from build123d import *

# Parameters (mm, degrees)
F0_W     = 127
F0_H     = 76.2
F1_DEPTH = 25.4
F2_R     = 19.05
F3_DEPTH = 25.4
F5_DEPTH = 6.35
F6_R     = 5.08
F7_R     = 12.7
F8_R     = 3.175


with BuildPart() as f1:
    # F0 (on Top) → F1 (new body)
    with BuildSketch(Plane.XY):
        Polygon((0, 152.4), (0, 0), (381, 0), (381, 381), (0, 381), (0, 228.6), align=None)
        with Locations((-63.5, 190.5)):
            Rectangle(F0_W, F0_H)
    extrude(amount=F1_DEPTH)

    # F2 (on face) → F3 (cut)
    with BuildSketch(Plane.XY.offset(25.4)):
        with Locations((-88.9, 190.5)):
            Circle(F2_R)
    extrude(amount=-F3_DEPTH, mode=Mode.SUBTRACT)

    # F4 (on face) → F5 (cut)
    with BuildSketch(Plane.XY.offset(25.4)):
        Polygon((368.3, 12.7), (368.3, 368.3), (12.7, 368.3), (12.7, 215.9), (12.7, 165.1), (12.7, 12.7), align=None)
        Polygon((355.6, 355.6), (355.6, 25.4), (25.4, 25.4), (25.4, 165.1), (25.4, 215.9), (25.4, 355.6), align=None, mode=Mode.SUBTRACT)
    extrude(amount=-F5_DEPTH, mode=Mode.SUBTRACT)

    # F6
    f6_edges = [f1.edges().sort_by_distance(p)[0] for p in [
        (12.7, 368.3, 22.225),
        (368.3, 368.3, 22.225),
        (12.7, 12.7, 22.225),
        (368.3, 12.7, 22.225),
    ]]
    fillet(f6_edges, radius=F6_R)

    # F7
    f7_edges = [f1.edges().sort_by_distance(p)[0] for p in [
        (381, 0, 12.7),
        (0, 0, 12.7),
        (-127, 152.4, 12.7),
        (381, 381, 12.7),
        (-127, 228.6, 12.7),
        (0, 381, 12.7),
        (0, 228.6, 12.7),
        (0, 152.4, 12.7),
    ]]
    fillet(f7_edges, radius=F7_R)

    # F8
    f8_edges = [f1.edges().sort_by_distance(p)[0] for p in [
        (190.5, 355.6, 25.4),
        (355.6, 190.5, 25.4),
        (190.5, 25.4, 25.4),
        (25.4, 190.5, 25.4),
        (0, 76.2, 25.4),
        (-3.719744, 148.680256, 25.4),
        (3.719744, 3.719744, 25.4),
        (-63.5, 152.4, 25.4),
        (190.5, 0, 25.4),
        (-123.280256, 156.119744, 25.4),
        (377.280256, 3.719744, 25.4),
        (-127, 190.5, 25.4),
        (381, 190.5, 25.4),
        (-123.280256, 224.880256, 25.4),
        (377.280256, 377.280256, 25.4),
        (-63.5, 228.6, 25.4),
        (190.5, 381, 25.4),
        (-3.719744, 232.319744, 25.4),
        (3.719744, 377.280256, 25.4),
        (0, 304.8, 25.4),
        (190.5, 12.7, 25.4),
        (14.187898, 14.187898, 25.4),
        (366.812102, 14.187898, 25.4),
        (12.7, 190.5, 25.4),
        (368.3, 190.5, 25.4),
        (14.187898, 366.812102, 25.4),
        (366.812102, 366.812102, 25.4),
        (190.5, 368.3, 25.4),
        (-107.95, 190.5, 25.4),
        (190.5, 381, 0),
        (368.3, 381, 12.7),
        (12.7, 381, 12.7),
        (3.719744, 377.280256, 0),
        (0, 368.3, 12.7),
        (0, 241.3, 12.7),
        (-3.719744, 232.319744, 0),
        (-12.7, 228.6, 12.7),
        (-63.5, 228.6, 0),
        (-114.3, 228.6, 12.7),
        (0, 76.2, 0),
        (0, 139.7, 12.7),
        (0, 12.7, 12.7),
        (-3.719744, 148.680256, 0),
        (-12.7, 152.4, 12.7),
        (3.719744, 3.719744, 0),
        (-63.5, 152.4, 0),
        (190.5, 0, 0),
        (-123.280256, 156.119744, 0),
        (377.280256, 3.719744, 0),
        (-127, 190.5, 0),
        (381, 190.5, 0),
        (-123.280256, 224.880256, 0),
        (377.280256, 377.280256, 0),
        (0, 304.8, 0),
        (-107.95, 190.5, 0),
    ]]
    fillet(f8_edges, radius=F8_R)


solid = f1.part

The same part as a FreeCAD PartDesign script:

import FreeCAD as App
import Part
import Sketcher

V = App.Vector
Q = App.Units.Quantity


def edges_at(feature, points):
    """Names of the edges that pass closest to the given points."""
    edges = feature.Shape.Edges
    near = lambda p: min(range(len(edges)), key=lambda i: edges[i].distToShape(Part.Vertex(*p))[0])
    return sorted({f"Edge{near(p) + 1}" for p in points})


def add_polygon(sketch, points):
    """Adds a closed chain of lines whose ends are joined by coincident constraints."""
    first, n = sketch.GeometryCount, len(points)
    for a, b in zip(points, points[1:] + points[:1]):
        sketch.addGeometry(Part.LineSegment(App.Vector(*a, 0), App.Vector(*b, 0)), False)
    for i in range(n):
        sketch.addConstraint(Sketcher.Constraint("Coincident", first + i, 2, first + (i + 1) % n, 1))

doc = App.newDocument("Part")
params = doc.addObject("Spreadsheet::Sheet", "Params")
for row, (alias, value) in enumerate([
    ("sketch1_width", "15 in"),
    ("sketch1_width2", "5 in"),
    ("sketch1_height", "6 in"),
    ("pad1_length", "1 in"),
    ("sketch2_diameter", "1.5 in"),
    ("pocket1_length", "1 in"),
    ("sketch3_width", "14 in"),
    ("sketch3_width2", "13 in"),
    ("pocket2_length", "0.25 in"),
    ("fillet_radius", "0.2 in"),
    ("fillet2_radius", "0.5 in"),
    ("fillet3_radius", "0.125 in"),
], start=1):
    params.set(f"A{row}", alias)
    params.set(f"B{row}", "=" + value)
    params.setAlias(f"B{row}", alias)

body = doc.addObject("PartDesign::Body", "Body")

# Sketch on XY plane
sketch1 = body.newObject("Sketcher::SketchObject", "Sketch")
sketch1.AttachmentSupport = (doc.getObject("XY_Plane"), [""])
sketch1.MapMode = "FlatFace"
add_polygon(sketch1, [(0, 0), (381, 0), (381, 381), (0, 381), (0, 229), (-127, 229), (-127, 152), (0, 152)])  # lines 0-7
sketch1.addConstraint(Sketcher.Constraint("Horizontal", 0))
sketch1.addConstraint(Sketcher.Constraint("Vertical", 1))
sketch1.addConstraint(Sketcher.Constraint("Horizontal", 2))
sketch1.addConstraint(Sketcher.Constraint("Vertical", 3))
sketch1.addConstraint(Sketcher.Constraint("Horizontal", 4))
sketch1.addConstraint(Sketcher.Constraint("Vertical", 5))
sketch1.addConstraint(Sketcher.Constraint("Horizontal", 6))
sketch1.addConstraint(Sketcher.Constraint("Vertical", 7))
sketch1.addConstraint(Sketcher.Constraint("Coincident", 7, 2, -1, 1))
sketch1.addConstraint(Sketcher.Constraint("PointOnObject", 2, 2, -2))
sketch1.addConstraint(Sketcher.Constraint("Equal", 2, 1))
sketch1.addConstraint(Sketcher.Constraint("Equal", 3, 7))
sketch1.addConstraint(Sketcher.Constraint("DistanceX", 0, 1, 0, 2, Q("15 in")))
sketch1.addConstraint(Sketcher.Constraint("DistanceX", 4, 2, 4, 1, Q("5 in")))
sketch1.addConstraint(Sketcher.Constraint("DistanceY", 3, 2, 3, 1, Q("6 in")))
sketch1.setExpression("Constraints[20]", "Params.sketch1_width")
sketch1.setExpression("Constraints[21]", "Params.sketch1_width2")
sketch1.setExpression("Constraints[22]", "Params.sketch1_height")
pad1 = body.newObject("PartDesign::Pad", "Pad")
pad1.Profile = sketch1
pad1.setExpression("Length", "Params.pad1_length")

# Sketch on XY plane
sketch2 = body.newObject("Sketcher::SketchObject", "Sketch001")
sketch2.AttachmentSupport = (doc.getObject("XY_Plane"), [""])
sketch2.MapMode = "FlatFace"
sketch2.AttachmentOffset = App.Placement(V(0, 0, 1 * 25.4), App.Rotation())
sketch2.addGeometry(Part.Circle(V(-89, 190, 0), V(0, 0, 1), 19), False)
sketch2.addConstraint(Sketcher.Constraint("Diameter", 0, Q("1.5 in")))
sketch2.addConstraint(Sketcher.Constraint("DistanceX", 0, 3, -1, 1, Q("3.5 in")))
sketch2.addConstraint(Sketcher.Constraint("DistanceY", -1, 1, 0, 3, Q("7.5 in")))
sketch2.setExpression("Constraints[0]", "Params.sketch2_diameter")
pocket1 = body.newObject("PartDesign::Pocket", "Pocket")
pocket1.Profile = sketch2
pocket1.setExpression("Length", "Params.pocket1_length")

# Sketch on XY plane
sketch3 = body.newObject("Sketcher::SketchObject", "Sketch002")
sketch3.AttachmentSupport = (doc.getObject("XY_Plane"), [""])
sketch3.MapMode = "FlatFace"
sketch3.AttachmentOffset = App.Placement(V(0, 0, 1 * 25.4), App.Rotation())
add_polygon(sketch3, [(368, 13), (368, 368), (13, 368), (13, 13)])  # lines 0-3
add_polygon(sketch3, [(25, 356), (356, 356), (356, 25), (25, 25)])  # lines 4-7
sketch3.addConstraint(Sketcher.Constraint("Vertical", 0))
sketch3.addConstraint(Sketcher.Constraint("Horizontal", 1))
sketch3.addConstraint(Sketcher.Constraint("Vertical", 2))
sketch3.addConstraint(Sketcher.Constraint("Horizontal", 3))
sketch3.addConstraint(Sketcher.Constraint("Horizontal", 4))
sketch3.addConstraint(Sketcher.Constraint("Vertical", 5))
sketch3.addConstraint(Sketcher.Constraint("Horizontal", 6))
sketch3.addConstraint(Sketcher.Constraint("Vertical", 7))
sketch3.addConstraint(Sketcher.Constraint("Equal", 3, 0))
sketch3.addConstraint(Sketcher.Constraint("Equal", 6, 5))
sketch3.addConstraint(Sketcher.Constraint("DistanceX", 1, 2, 1, 1, Q("14 in")))
sketch3.addConstraint(Sketcher.Constraint("DistanceX", 4, 1, 4, 2, Q("13 in")))
sketch3.addConstraint(Sketcher.Constraint("DistanceX", -1, 1, 4, 2, Q("14 in")))
sketch3.addConstraint(Sketcher.Constraint("DistanceY", -1, 1, 4, 2, Q("14 in")))
sketch3.addConstraint(Sketcher.Constraint("DistanceX", -1, 1, 0, 2, Q("14.5 in")))
sketch3.addConstraint(Sketcher.Constraint("DistanceY", -1, 1, 0, 2, Q("14.5 in")))
sketch3.setExpression("Constraints[18]", "Params.sketch3_width")
sketch3.setExpression("Constraints[19]", "Params.sketch3_width2")
pocket2 = body.newObject("PartDesign::Pocket", "Pocket001")
pocket2.Profile = sketch3
pocket2.setExpression("Length", "Params.pocket2_length")
doc.recompute()

fillet = body.newObject("PartDesign::Fillet", "Fillet")
fillet.Base = (pocket2, edges_at(pocket2, [
    (12.7, 368.3, 22.225),
    (368.3, 368.3, 22.225),
    (12.7, 12.7, 22.225),
    (368.3, 12.7, 22.225),
]))
fillet.setExpression("Radius", "Params.fillet_radius")
doc.recompute()

fillet2 = body.newObject("PartDesign::Fillet", "Fillet001")
fillet2.Base = (fillet, edges_at(fillet, [
    (381, 0, 12.7),
    (0, 0, 12.7),
    (-127, 152.4, 12.7),
    (381, 381, 12.7),
    (-127, 228.6, 12.7),
    (0, 381, 12.7),
    (0, 228.6, 12.7),
    (0, 152.4, 12.7),
]))
fillet2.setExpression("Radius", "Params.fillet2_radius")
doc.recompute()

fillet3 = body.newObject("PartDesign::Fillet", "Fillet002")
fillet3.Base = (fillet2, edges_at(fillet2, [
    (190.5, 355.6, 25.4),
    (355.6, 190.5, 25.4),
    (190.5, 25.4, 25.4),
    (25.4, 190.5, 25.4),
    (0, 76.2, 25.4),
    (-3.72, 148.68, 25.4),
    (3.72, 3.72, 25.4),
    (-63.5, 152.4, 25.4),
    (190.5, 0, 25.4),
    (-123.28, 156.12, 25.4),
    (377.28, 3.72, 25.4),
    (-127, 190.5, 25.4),
    (381, 190.5, 25.4),
    (-123.28, 224.88, 25.4),
    (377.28, 377.28, 25.4),
    (-63.5, 228.6, 25.4),
    (190.5, 381, 25.4),
    (-3.72, 232.32, 25.4),
    (3.72, 377.28, 25.4),
    (0, 304.8, 25.4),
    (190.5, 12.7, 25.4),
    (14.188, 14.188, 25.4),
    (366.812, 14.188, 25.4),
    (12.7, 190.5, 25.4),
    (368.3, 190.5, 25.4),
    (14.188, 366.812, 25.4),
    (366.812, 366.812, 25.4),
    (190.5, 368.3, 25.4),
    (-107.95, 190.5, 25.4),
    (190.5, 381, 0),
    (368.3, 381, 12.7),
    (12.7, 381, 12.7),
    (3.72, 377.28, 0),
    (0, 368.3, 12.7),
    (0, 241.3, 12.7),
    (-3.72, 232.32, 0),
    (-12.7, 228.6, 12.7),
    (-63.5, 228.6, 0),
    (-114.3, 228.6, 12.7),
    (0, 76.2, 0),
    (0, 139.7, 12.7),
    (0, 12.7, 12.7),
    (-3.72, 148.68, 0),
    (-12.7, 152.4, 12.7),
    (3.72, 3.72, 0),
    (-63.5, 152.4, 0),
    (190.5, 0, 0),
    (-123.28, 156.12, 0),
    (377.28, 3.72, 0),
    (-127, 190.5, 0),
    (381, 190.5, 0),
    (-123.28, 224.88, 0),
    (377.28, 377.28, 0),
    (0, 304.8, 0),
    (-107.95, 190.5, 0),
]))
fillet3.setExpression("Radius", "Params.fillet3_radius")

doc.recompute()
